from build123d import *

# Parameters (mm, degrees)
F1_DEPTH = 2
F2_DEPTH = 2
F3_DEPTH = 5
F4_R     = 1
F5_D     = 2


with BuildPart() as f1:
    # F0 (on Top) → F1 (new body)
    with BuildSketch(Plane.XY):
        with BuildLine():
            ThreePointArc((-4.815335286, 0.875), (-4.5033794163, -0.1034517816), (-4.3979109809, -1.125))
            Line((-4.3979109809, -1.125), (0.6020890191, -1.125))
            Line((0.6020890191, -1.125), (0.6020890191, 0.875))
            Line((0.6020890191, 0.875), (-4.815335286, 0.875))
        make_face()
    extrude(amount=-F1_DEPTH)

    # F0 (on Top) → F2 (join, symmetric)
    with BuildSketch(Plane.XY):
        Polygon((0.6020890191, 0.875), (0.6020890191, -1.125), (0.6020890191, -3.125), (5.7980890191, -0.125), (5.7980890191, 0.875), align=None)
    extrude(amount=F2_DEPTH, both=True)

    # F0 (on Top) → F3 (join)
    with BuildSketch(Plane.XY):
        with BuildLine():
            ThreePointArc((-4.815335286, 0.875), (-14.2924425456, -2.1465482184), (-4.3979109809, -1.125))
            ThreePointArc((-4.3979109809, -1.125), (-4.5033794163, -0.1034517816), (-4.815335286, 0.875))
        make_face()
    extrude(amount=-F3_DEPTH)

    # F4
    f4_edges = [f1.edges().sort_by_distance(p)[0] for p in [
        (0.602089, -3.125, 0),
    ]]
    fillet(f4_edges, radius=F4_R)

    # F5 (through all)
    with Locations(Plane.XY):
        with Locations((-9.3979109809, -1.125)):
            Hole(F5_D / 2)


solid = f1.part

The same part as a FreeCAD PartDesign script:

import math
import FreeCAD as App
import Part
import Sketcher
Q = App.Units.Quantity


def edges_at(feature, points):
    """Names of the edges that pass closest to the given points."""
    edges = feature.Shape.Edges
    near = lambda p: min(range(len(edges)), key=lambda i: edges[i].distToShape(Part.Vertex(*p))[0])
    return sorted({f"Edge{near(p) + 1}" for p in points})


def add_polygon(sketch, points):
    """Adds a closed chain of lines whose ends are joined by coincident constraints."""
    first, n = sketch.GeometryCount, len(points)
    for a, b in zip(points, points[1:] + points[:1]):
        sketch.addGeometry(Part.LineSegment(App.Vector(*a, 0), App.Vector(*b, 0)), False)
    for i in range(n):
        sketch.addConstraint(Sketcher.Constraint("Coincident", first + i, 2, first + (i + 1) % n, 1))

doc = App.newDocument("Part")
body = doc.addObject("PartDesign::Body", "Body")

sketch1 = body.newObject("Sketcher::SketchObject", "Sketch")
sketch1.AttachmentSupport = (doc.getObject("XY_Plane"), [""])
sketch1.MapMode = "FlatFace"
sketch1.addGeometry([
    Part.ArcOfCircle(Part.Circle(App.Vector(-9.4, -1.1, 0), App.Vector(0, 0, 1), 5), math.radians(0), math.radians(24)),
    Part.LineSegment(App.Vector(-4.4, -1.1, 0), App.Vector(0.6, -1.1, 0)),
    Part.LineSegment(App.Vector(0.6, -1.1, 0), App.Vector(0.6, 0.9, 0)),
    Part.LineSegment(App.Vector(0.6, 0.9, 0), App.Vector(-4.8, 0.9, 0)),
], False)
sketch1.addConstraint([
    Sketcher.Constraint("Coincident", 0, 1, 1, 1),
    Sketcher.Constraint("Coincident", 1, 2, 2, 1),
    Sketcher.Constraint("Coincident", 2, 2, 3, 1),
    Sketcher.Constraint("Coincident", 3, 2, 0, 2),
    Sketcher.Constraint("Horizontal", 1),
    Sketcher.Constraint("Vertical", 2),
    Sketcher.Constraint("Horizontal", 3),
    Sketcher.Constraint("Radius", 0, Q("5 mm")),
    Sketcher.Constraint("DistanceX", 1, 1, 1, 2, Q("5 mm")),
    Sketcher.Constraint("DistanceY", 2, 1, 2, 2, Q("2 mm")),
    Sketcher.Constraint("DistanceY", 0, 3, 2, 2, Q("2 mm")),
    Sketcher.Constraint("DistanceY", 0, 3, -1, 1, Q("1.125 mm")),
    Sketcher.Constraint("DistanceX", 0, 3, -1, 1, Q("9.397911 mm")),
])
pad1 = body.newObject("PartDesign::Pad", "Pad")
pad1.Profile = sketch1
pad1.Length = 2
pad1.Reversed = True

sketch2 = body.newObject("Sketcher::SketchObject", "Sketch001")
sketch2.AttachmentSupport = (doc.getObject("XY_Plane"), [""])
sketch2.MapMode = "FlatFace"
add_polygon(sketch2, [(0.6, 0.9), (0.6, -3.1), (5.8, -0.1), (5.8, 0.9)])
sketch2.addConstraint([
    Sketcher.Constraint("Vertical", 0),
    Sketcher.Constraint("Vertical", 2),
    Sketcher.Constraint("Horizontal", 3),
    Sketcher.Constraint("DistanceY", 0, 2, 0, 1, Q("4 mm")),
    Sketcher.Constraint("DistanceY", 2, 1, 2, 2, Q("1 mm")),
    Sketcher.Constraint("DistanceX", 3, 2, 3, 1, Q("5.196 mm")),
    Sketcher.Constraint("DistanceY", 0, 2, -1, 1, Q("3.125 mm")),
    Sketcher.Constraint("DistanceX", -1, 1, 0, 2, Q("0.602089 mm")),
])
pad2 = body.newObject("PartDesign::Pad", "Pad001")
pad2.Profile = sketch2
pad2.Length = 4
pad2.Midplane = True

sketch3 = body.newObject("Sketcher::SketchObject", "Sketch002")
sketch3.AttachmentSupport = (doc.getObject("XY_Plane"), [""])
sketch3.MapMode = "FlatFace"
sketch3.addGeometry([
    Part.ArcOfCircle(Part.Circle(App.Vector(-9.4, -1.1, 0), App.Vector(0, 0, 1), 5), math.radians(24), math.radians(360)),
    Part.ArcOfCircle(Part.Circle(App.Vector(-9.4, -1.1, 0), App.Vector(0, 0, 1), 5), math.radians(0), math.radians(24)),
], False)
sketch3.addConstraint([
    Sketcher.Constraint("Tangent", 0, 1, 1, 2),
    Sketcher.Constraint("Coincident", 1, 1, 0, 2),
    Sketcher.Constraint("Horizontal", 0, 3, 1, 1),
    Sketcher.Constraint("Radius", 0, Q("5 mm")),
    Sketcher.Constraint("DistanceY", 0, 3, 0, 1, Q("2 mm")),
    Sketcher.Constraint("DistanceY", 0, 3, -1, 1, Q("1.125 mm")),
    Sketcher.Constraint("DistanceX", 0, 3, -1, 1, Q("9.397911 mm")),
])
pad3 = body.newObject("PartDesign::Pad", "Pad002")
pad3.Profile = sketch3
pad3.Length = 5
pad3.Reversed = True
doc.recompute()

fillet = body.newObject("PartDesign::Fillet", "Fillet")
fillet.Base = (pad3, edges_at(pad3, [(0.602, -3.125, 0)]))
fillet.Radius = 1

sketch4 = body.newObject("Sketcher::SketchObject", "Sketch003")
sketch4.AttachmentSupport = (doc.getObject("XY_Plane"), [""])
sketch4.MapMode = "FlatFace"
sketch4.addGeometry(Part.Circle(App.Vector(-9.4, -1.1, 0), App.Vector(0, 0, 1), 1), False)
sketch4.addConstraint([
    Sketcher.Constraint("Diameter", 0, Q("2 mm")),
    Sketcher.Constraint("DistanceY", 0, 3, -1, 1, Q("1.125 mm")),
    Sketcher.Constraint("DistanceX", 0, 3, -1, 1, Q("9.397911 mm")),
])
doc.recompute()
hole = body.newObject("PartDesign::Hole", "Hole")
hole.Profile = sketch4
hole.ThreadType = "None"
hole.Diameter = 2
hole.DepthType = "ThroughAll"

doc.recompute()
